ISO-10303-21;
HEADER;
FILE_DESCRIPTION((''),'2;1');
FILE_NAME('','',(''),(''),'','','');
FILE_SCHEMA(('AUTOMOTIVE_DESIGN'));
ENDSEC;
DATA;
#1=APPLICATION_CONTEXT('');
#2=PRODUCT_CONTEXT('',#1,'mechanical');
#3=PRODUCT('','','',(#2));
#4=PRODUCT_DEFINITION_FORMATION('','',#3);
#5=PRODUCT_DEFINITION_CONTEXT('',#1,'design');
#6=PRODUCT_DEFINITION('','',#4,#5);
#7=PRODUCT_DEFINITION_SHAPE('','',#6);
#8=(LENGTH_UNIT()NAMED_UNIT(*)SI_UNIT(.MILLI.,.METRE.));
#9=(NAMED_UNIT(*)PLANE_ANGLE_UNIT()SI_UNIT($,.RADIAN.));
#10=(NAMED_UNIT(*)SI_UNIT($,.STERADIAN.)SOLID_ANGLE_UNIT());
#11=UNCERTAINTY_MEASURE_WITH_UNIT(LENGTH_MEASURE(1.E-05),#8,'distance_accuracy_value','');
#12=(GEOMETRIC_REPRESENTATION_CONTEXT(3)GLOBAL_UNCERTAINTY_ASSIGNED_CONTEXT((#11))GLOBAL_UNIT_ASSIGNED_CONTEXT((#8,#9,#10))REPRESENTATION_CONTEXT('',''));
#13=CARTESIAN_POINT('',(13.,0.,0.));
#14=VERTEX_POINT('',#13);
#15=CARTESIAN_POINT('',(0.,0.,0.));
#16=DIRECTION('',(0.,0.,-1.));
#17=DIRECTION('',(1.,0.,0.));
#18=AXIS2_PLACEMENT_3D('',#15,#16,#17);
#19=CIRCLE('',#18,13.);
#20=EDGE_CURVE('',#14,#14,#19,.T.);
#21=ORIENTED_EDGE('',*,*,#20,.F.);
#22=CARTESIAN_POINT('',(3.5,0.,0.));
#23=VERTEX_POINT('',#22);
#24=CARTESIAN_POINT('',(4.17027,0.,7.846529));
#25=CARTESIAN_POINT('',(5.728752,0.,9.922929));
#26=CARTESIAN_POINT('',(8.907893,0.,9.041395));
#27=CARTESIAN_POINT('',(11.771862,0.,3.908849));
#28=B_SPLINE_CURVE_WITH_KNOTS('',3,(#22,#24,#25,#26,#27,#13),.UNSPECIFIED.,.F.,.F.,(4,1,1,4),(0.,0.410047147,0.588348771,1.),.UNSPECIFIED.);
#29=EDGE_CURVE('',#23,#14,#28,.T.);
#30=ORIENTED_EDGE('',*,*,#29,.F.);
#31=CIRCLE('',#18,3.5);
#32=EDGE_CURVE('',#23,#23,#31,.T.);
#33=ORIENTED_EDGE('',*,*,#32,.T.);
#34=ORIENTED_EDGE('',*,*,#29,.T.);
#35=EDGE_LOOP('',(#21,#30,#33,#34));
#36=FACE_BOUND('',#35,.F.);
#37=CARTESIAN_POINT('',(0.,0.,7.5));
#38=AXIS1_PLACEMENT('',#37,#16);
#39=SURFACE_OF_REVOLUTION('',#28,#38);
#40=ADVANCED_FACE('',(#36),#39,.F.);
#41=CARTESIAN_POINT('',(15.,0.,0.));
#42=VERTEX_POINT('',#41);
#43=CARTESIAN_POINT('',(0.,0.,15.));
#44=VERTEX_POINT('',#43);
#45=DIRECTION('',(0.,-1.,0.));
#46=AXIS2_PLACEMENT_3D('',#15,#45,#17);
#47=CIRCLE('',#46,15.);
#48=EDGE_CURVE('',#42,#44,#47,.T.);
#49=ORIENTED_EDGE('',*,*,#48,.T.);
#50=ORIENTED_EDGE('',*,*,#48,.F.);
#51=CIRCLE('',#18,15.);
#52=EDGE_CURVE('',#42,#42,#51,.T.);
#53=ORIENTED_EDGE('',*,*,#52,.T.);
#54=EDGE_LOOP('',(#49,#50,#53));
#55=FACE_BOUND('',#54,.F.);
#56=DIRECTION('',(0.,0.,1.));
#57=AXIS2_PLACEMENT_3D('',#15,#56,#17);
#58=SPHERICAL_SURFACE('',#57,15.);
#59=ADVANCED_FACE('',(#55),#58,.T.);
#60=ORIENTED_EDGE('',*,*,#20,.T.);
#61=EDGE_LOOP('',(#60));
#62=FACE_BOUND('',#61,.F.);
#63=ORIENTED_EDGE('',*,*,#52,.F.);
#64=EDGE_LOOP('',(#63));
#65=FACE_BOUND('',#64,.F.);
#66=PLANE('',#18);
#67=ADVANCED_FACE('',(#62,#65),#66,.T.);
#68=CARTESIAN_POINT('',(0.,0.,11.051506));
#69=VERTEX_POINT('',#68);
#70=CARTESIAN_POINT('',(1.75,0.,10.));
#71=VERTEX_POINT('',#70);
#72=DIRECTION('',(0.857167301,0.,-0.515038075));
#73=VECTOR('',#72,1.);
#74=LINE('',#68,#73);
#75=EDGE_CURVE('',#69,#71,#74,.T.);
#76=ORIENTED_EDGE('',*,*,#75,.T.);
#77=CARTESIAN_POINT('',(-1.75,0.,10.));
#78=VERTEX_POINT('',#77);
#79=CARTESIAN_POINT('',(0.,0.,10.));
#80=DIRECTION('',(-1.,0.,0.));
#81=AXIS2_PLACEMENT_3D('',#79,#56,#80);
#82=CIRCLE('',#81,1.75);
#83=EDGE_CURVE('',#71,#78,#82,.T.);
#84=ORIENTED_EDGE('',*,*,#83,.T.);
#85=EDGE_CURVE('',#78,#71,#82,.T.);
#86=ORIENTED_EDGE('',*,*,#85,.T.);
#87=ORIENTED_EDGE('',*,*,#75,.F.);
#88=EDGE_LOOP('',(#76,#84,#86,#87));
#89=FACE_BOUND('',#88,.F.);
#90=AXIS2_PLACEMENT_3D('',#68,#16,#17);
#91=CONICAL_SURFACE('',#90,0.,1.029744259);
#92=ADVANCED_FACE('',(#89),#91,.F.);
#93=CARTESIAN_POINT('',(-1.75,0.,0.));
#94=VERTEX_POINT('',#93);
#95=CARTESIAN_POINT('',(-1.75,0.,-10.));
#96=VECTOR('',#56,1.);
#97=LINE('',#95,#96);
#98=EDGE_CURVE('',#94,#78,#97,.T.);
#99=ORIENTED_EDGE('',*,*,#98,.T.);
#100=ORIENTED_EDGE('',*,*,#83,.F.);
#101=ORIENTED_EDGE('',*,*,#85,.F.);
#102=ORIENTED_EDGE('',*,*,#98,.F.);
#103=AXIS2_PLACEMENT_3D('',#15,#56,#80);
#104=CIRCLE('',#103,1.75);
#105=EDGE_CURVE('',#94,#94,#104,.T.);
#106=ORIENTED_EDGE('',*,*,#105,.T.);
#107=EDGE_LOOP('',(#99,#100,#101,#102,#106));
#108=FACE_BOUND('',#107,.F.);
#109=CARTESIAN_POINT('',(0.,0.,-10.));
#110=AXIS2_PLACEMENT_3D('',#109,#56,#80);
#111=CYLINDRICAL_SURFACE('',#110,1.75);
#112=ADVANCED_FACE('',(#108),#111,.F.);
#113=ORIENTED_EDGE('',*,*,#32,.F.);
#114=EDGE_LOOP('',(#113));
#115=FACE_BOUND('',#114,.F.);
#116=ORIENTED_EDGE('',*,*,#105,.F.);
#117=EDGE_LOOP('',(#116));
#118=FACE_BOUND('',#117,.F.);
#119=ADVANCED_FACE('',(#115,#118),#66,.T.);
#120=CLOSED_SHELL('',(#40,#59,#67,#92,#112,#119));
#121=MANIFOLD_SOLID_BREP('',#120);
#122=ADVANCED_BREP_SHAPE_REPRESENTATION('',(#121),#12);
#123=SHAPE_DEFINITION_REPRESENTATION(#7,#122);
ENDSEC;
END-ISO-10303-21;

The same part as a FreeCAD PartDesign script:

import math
import FreeCAD as App
import Part
import Sketcher

V = App.Vector

doc = App.newDocument("Part")
body = doc.addObject("PartDesign::Body", "Body")

# Sketch on XZ plane
sketch1 = body.newObject("Sketcher::SketchObject", "Sketch")
sketch1.AttachmentSupport = (doc.getObject("XZ_Plane"), [""])
sketch1.MapMode = "FlatFace"
sketch1.addGeometry(Part.LineSegment(V(13, 0, 0), V(15, 0, 0)), False)
sketch1.addGeometry(Part.ArcOfCircle(Part.Circle(V(0, 0, 0), V(0, 0, 1), 15), math.radians(0), math.radians(90)), False)
sketch1.addGeometry(Part.LineSegment(V(0, 15, 0), V(0, 0, 0)), False)
sketch1.addGeometry(Part.LineSegment(V(0, 0, 0), V(3.5, 0, 0)), False)
sketch1.addGeometry(Part.BSplineCurve([V(3.5, 0, 0), V(4.17027, 7.846529, 0), V(5.728752, 9.922929, 0), V(8.907893, 9.041395, 0), V(11.771862, 3.908849, 0), V(13, 0, 0)], [4, 1, 1, 4], [0, 0.410047147, 0.588348771, 1], False, 3, [1, 1, 1, 1, 1, 1], False), False)
sketch1.addConstraint(Sketcher.Constraint("Block", 4))
sketch1.addConstraint(Sketcher.Constraint("Coincident", 0, 2, 1, 1))
sketch1.addConstraint(Sketcher.Constraint("Coincident", 1, 2, 2, 1))
sketch1.addConstraint(Sketcher.Constraint("Coincident", 2, 2, 3, 1))
sketch1.addConstraint(Sketcher.Constraint("Coincident", 3, 2, 4, 1))
sketch1.addConstraint(Sketcher.Constraint("Coincident", 4, 2, 0, 1))
sketch1.addConstraint(Sketcher.Constraint("Horizontal", 0))
sketch1.addConstraint(Sketcher.Constraint("Vertical", 2))
sketch1.addConstraint(Sketcher.Constraint("Horizontal", 3))
sketch1.addConstraint(Sketcher.Constraint("Coincident", 1, 3, -1, 1))
sketch1.addConstraint(Sketcher.Constraint("PointOnObject", 1, 2, -2))
sketch1.addConstraint(Sketcher.Constraint("Radius", 1, 15.0))
revolution = body.newObject("PartDesign::Revolution", "Revolution")
revolution.Profile = sketch1
revolution.ReferenceAxis = (sketch1, ["V_Axis"])
revolution.Angle = 360

# Sketch on XY plane
sketch2 = body.newObject("Sketcher::SketchObject", "Sketch001")
sketch2.AttachmentSupport = (doc.getObject("XY_Plane"), [""])
sketch2.MapMode = "FlatFace"
sketch2.addGeometry(Part.Circle(V(0, 0, 0), V(0, 0, 1), 1.8), False)
sketch2.addConstraint(Sketcher.Constraint("Coincident", 0, 3, -1, 1))
sketch2.addConstraint(Sketcher.Constraint("Diameter", 0, 3.5))
doc.recompute()
hole = body.newObject("PartDesign::Hole", "Hole")
hole.Profile = sketch2
hole.ThreadType = "None"
hole.Diameter = 3.5
hole.DepthType = "Dimension"
hole.Depth = 10
hole.DrillPoint = "Angled"
hole.DrillPointAngle = 118
hole.Reversed = True

doc.recompute()
